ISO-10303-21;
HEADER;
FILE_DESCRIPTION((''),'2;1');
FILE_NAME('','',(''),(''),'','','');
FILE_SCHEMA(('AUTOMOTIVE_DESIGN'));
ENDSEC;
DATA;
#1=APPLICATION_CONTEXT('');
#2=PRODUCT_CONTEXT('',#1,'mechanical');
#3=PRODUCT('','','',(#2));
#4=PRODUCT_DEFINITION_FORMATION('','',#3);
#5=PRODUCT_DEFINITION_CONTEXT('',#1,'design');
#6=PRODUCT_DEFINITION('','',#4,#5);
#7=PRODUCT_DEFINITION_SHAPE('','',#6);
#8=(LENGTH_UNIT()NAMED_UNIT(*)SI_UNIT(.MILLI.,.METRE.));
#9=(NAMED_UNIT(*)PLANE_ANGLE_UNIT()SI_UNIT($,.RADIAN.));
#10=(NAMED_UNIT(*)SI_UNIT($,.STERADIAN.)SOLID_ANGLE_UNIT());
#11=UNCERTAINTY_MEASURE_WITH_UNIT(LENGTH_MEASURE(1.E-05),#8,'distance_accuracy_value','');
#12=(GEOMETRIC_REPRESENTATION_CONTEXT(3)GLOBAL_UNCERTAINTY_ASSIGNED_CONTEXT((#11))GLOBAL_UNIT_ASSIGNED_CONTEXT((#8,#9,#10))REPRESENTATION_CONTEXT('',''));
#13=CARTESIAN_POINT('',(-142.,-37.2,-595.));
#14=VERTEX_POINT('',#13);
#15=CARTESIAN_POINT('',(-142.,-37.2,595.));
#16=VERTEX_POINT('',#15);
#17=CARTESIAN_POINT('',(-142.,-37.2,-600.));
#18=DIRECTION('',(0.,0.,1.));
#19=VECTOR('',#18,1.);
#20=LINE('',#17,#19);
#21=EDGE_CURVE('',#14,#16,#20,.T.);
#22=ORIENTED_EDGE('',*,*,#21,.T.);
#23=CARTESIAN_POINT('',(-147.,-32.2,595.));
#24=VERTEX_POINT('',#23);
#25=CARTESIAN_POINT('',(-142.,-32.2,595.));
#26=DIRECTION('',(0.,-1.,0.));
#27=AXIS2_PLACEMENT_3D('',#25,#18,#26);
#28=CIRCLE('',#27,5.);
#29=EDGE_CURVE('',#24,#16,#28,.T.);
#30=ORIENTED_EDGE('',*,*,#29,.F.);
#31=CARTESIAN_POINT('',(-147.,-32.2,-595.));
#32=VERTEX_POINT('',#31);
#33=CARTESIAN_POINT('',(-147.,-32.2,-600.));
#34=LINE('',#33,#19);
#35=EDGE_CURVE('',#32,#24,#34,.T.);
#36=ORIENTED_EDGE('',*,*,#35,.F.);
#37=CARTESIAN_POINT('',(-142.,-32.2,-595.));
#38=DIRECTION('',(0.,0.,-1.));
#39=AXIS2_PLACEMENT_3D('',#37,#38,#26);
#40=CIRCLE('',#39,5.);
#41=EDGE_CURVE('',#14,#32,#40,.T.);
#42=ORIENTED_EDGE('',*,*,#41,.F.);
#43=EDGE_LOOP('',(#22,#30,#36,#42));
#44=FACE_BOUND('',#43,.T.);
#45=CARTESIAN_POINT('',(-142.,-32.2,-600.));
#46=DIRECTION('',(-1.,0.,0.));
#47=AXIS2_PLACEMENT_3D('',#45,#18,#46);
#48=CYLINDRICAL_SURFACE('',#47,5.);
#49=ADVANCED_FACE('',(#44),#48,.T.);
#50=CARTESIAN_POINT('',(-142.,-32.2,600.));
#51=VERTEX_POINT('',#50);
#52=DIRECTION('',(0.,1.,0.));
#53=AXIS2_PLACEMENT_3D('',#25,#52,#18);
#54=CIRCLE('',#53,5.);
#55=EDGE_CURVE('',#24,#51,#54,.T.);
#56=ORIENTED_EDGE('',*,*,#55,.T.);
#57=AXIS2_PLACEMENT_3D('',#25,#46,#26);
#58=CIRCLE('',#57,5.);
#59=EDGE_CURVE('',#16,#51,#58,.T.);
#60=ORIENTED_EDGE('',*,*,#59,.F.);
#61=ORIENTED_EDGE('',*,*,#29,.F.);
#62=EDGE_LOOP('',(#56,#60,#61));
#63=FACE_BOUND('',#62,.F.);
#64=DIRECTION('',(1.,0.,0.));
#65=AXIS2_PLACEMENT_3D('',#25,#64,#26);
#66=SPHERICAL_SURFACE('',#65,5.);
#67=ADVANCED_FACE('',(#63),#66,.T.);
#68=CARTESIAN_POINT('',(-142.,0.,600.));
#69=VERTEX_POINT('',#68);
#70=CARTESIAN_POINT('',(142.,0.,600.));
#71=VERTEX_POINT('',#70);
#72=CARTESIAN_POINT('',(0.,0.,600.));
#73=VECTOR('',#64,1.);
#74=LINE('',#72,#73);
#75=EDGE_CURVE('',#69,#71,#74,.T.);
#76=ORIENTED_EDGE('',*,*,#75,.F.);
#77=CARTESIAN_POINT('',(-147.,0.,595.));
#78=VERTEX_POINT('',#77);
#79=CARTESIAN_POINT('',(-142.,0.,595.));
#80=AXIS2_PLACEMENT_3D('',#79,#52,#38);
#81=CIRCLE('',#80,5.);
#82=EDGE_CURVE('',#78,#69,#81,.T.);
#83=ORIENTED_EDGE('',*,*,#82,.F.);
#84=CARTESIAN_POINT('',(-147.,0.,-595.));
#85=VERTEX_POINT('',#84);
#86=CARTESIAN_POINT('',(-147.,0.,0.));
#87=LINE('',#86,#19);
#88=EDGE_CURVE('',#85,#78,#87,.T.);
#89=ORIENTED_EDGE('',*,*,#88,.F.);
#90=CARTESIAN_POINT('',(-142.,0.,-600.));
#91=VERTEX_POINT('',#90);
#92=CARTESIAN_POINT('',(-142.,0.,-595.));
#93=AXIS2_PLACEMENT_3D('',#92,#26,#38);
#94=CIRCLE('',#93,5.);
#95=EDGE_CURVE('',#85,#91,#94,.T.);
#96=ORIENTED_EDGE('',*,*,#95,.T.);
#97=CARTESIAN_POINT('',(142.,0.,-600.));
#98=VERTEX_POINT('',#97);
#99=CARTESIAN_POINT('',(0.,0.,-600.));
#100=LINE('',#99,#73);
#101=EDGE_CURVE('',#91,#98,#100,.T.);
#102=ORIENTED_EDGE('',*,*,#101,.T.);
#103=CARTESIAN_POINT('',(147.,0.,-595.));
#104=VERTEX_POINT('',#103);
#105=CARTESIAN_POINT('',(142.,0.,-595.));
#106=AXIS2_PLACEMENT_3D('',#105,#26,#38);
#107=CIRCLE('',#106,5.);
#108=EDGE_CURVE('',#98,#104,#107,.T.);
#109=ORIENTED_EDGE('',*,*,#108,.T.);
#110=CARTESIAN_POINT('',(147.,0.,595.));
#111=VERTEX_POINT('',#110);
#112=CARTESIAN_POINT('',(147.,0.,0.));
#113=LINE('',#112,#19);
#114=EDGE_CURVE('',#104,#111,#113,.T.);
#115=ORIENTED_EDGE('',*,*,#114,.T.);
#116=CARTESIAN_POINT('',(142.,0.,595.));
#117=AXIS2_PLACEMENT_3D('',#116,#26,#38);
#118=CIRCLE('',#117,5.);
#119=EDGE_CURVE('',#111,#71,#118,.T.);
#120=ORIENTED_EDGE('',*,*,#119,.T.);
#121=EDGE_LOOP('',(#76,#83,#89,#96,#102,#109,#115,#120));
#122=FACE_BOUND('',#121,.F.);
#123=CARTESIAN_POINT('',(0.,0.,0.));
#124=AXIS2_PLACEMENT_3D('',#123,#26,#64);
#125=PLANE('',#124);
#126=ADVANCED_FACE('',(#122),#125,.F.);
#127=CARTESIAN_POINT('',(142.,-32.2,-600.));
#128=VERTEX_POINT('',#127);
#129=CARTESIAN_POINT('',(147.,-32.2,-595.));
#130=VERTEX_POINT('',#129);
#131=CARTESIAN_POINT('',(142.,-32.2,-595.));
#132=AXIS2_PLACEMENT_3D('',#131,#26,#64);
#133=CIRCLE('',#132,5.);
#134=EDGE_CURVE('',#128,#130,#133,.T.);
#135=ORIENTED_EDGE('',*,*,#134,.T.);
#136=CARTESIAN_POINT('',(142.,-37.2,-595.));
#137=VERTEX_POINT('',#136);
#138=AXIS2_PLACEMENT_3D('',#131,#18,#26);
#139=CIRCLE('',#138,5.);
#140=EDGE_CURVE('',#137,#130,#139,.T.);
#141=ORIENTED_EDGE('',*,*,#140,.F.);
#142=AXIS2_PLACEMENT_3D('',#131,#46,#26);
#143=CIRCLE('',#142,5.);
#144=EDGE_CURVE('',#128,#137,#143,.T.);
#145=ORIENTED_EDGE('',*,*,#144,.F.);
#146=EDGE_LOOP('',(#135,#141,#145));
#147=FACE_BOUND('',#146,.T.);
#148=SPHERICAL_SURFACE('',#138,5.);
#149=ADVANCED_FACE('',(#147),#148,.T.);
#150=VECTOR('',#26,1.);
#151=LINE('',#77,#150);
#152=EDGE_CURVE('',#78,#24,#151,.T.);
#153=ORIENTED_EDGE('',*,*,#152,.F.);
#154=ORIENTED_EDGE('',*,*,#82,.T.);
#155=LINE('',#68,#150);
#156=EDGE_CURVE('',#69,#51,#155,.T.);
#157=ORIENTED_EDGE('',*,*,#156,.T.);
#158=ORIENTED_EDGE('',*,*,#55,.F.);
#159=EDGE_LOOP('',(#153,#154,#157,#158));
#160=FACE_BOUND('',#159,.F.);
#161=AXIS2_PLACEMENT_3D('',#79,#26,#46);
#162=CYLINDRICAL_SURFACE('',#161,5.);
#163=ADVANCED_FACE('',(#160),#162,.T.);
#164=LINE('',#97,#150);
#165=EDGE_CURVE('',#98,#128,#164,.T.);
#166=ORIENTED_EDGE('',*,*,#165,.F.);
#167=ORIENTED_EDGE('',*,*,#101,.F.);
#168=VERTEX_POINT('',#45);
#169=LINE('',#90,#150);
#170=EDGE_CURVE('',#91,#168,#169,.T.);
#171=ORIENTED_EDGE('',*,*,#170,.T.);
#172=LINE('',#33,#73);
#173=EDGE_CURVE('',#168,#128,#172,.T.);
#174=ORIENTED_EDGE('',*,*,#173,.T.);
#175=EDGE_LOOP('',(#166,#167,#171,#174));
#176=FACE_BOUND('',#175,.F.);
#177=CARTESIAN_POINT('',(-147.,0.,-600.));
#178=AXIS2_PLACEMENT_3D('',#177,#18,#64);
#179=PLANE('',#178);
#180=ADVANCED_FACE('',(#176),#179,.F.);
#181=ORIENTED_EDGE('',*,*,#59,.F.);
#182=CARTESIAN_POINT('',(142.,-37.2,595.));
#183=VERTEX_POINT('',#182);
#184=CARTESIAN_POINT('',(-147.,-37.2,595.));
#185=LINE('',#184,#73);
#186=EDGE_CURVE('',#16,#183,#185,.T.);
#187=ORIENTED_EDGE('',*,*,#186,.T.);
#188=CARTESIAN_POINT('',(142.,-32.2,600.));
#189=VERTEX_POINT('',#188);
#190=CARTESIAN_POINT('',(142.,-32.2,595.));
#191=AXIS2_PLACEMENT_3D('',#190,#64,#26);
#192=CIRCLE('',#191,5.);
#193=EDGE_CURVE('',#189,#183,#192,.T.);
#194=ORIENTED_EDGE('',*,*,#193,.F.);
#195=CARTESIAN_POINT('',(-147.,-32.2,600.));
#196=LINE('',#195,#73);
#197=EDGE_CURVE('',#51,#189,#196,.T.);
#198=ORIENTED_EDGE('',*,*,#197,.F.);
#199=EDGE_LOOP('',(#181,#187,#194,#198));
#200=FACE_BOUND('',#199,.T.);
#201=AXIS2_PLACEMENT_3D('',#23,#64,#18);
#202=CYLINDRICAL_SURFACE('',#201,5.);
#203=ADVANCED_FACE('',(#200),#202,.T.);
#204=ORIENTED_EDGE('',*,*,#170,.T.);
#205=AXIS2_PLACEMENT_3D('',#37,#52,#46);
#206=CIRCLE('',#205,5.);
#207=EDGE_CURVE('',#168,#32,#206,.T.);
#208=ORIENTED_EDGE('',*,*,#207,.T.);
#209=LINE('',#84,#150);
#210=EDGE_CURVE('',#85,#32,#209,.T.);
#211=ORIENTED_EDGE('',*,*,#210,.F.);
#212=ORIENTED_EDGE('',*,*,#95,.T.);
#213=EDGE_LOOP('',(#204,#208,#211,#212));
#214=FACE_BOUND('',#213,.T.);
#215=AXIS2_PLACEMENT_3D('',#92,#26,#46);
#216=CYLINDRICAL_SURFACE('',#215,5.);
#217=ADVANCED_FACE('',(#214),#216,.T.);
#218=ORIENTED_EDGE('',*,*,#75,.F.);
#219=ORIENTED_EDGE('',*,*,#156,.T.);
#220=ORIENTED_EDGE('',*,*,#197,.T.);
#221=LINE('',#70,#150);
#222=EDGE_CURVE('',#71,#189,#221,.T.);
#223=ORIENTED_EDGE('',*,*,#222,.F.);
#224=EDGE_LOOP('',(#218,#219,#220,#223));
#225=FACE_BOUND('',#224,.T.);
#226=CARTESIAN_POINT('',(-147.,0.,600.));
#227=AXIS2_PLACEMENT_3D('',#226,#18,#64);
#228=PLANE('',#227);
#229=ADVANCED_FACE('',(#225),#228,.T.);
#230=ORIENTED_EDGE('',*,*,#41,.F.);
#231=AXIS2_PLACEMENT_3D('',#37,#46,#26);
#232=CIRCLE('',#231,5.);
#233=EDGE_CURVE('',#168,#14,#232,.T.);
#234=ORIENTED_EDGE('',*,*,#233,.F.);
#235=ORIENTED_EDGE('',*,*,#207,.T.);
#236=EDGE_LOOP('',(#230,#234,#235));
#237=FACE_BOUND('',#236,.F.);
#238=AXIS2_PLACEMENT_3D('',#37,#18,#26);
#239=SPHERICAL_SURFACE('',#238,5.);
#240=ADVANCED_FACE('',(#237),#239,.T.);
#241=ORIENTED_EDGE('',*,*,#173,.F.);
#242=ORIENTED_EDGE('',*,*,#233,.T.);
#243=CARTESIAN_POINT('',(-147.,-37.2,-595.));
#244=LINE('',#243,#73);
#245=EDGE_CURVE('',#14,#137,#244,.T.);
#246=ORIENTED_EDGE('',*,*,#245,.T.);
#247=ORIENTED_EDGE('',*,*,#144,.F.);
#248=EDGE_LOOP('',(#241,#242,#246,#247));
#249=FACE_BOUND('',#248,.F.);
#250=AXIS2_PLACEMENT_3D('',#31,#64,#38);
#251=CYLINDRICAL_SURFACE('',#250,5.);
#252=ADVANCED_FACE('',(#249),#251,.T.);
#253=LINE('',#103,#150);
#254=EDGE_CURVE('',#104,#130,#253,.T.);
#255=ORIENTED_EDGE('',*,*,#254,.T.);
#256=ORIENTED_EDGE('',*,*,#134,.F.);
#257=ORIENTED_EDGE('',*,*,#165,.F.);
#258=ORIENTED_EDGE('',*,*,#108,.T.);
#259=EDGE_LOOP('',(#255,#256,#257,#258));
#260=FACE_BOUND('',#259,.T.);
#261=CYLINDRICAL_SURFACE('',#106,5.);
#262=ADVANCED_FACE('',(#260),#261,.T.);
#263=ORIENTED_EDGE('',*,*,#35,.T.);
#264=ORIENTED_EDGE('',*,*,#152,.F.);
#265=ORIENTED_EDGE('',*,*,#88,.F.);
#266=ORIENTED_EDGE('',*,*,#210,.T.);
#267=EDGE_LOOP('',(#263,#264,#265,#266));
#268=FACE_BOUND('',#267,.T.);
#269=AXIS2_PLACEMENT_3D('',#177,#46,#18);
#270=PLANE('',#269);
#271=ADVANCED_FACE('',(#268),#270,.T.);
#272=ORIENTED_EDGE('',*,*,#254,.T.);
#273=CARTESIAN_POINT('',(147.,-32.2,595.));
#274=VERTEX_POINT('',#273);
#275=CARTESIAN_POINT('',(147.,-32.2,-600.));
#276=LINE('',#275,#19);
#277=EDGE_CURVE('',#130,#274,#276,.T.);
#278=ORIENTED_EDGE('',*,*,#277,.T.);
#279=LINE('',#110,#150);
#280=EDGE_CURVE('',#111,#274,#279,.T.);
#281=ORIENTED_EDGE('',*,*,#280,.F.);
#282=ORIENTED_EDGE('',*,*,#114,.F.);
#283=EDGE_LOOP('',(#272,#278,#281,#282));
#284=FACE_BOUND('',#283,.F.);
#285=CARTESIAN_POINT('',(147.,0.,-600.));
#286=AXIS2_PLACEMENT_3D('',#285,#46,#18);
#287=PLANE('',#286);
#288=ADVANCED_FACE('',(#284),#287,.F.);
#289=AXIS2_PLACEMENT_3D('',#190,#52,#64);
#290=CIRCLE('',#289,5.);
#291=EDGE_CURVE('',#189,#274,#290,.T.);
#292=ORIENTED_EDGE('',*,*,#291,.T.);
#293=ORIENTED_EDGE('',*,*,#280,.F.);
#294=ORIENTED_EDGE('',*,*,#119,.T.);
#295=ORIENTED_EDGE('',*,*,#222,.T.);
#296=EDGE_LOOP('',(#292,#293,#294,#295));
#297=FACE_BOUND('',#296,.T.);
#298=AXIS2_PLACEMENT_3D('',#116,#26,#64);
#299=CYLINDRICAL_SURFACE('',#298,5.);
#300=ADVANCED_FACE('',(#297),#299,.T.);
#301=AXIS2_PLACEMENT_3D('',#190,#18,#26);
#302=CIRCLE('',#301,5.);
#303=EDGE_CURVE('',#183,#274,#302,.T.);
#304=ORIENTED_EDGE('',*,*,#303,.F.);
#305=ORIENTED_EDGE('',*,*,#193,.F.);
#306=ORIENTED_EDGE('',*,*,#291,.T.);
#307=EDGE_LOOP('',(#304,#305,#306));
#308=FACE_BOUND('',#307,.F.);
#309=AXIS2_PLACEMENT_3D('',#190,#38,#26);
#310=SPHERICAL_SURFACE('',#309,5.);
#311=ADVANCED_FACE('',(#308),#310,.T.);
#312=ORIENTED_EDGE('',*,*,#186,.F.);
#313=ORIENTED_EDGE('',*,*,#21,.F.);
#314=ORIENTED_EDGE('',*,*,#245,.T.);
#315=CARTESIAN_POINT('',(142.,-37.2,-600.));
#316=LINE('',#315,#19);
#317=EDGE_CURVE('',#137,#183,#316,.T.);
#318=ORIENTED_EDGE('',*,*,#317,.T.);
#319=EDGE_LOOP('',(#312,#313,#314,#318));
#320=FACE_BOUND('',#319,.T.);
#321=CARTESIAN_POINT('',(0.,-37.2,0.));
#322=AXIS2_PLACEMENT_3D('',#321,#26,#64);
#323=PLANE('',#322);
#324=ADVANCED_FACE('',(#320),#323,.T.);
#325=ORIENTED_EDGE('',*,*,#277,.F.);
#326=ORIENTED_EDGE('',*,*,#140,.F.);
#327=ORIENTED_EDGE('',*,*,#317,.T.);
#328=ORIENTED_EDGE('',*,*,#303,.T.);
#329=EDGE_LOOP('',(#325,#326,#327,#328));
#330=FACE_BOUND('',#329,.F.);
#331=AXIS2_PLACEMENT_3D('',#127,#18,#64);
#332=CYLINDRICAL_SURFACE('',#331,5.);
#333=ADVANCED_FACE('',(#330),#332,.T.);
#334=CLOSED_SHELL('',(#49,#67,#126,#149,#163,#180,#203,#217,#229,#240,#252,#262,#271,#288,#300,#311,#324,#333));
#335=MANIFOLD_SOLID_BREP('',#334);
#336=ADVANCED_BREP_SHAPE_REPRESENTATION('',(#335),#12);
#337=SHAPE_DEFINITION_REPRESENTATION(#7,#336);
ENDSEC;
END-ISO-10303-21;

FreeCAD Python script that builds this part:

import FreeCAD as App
import Part
import Sketcher


def edges_at(feature, points):
    """Names of the edges that pass closest to the given points."""
    edges = feature.Shape.Edges
    near = lambda p: min(range(len(edges)), key=lambda i: edges[i].distToShape(Part.Vertex(*p))[0])
    return sorted({f"Edge{near(p) + 1}" for p in points})

doc = App.newDocument("Part")
params = doc.addObject("Spreadsheet::Sheet", "Params")
for row, (alias, value) in enumerate([
    ("sketch1_width", "294 mm"),
    ("sketch1_height", "1200 mm"),
    ("pad1_length", "37.2 mm"),
    ("fillet_radius", "5 mm"),
], start=1):
    params.set(f"A{row}", alias)
    params.set(f"B{row}", "=" + value)
    params.setAlias(f"B{row}", alias)

body = doc.addObject("PartDesign::Body", "Body")

sketch1 = doc.addObject("Sketcher::SketchObject", "Sketch")
body.addObject(sketch1)
sketch1.AttachmentSupport = (doc.XZ_Plane, [""])
sketch1.MapMode = "FlatFace"
sketch1.addGeometry(Part.LineSegment(App.Vector(-147, 600, 0), App.Vector(-147, -600, 0)), False)
sketch1.addGeometry(Part.LineSegment(App.Vector(-147, -600, 0), App.Vector(147, -600, 0)), False)
sketch1.addGeometry(Part.LineSegment(App.Vector(147, -600, 0), App.Vector(147, 600, 0)), False)
sketch1.addGeometry(Part.LineSegment(App.Vector(147, 600, 0), App.Vector(-147, 600, 0)), False)
sketch1.addConstraint(Sketcher.Constraint("Coincident", 0, 2, 1, 1))
sketch1.addConstraint(Sketcher.Constraint("Coincident", 1, 2, 2, 1))
sketch1.addConstraint(Sketcher.Constraint("Coincident", 2, 2, 3, 1))
sketch1.addConstraint(Sketcher.Constraint("Coincident", 3, 2, 0, 1))
sketch1.addConstraint(Sketcher.Constraint("Vertical", 0))
sketch1.addConstraint(Sketcher.Constraint("Horizontal", 1))
sketch1.addConstraint(Sketcher.Constraint("Vertical", 2))
sketch1.addConstraint(Sketcher.Constraint("Horizontal", 3))
sketch1.addConstraint(Sketcher.Constraint("Symmetric", 0, 2, 2, 2, -1, 1))
sketch1.addConstraint(Sketcher.Constraint("DistanceX", 1, 1, 1, 2, 294.0))
sketch1.addConstraint(Sketcher.Constraint("DistanceY", 0, 2, 0, 1, 1200.0))
sketch1.setExpression("Constraints[9]", "Params.sketch1_width")
sketch1.setExpression("Constraints[10]", "Params.sketch1_height")
pad1 = doc.addObject("PartDesign::Pad", "Pad")
body.addObject(pad1)
pad1.Profile = sketch1
pad1.setExpression("Length", "Params.pad1_length")
doc.recompute()

fillet = doc.addObject("PartDesign::Fillet", "Fillet")
body.addObject(fillet)
fillet.Base = (pad1, edges_at(pad1, [
    (147, -37.2, 0),
    (0, -37.2, 600),
    (-147, -37.2, 0),
    (0, -37.2, -600),
    (-147, -18.6, 600),
    (147, -18.6, 600),
    (147, -18.6, -600),
    (-147, -18.6, -600),
]))
fillet.setExpression("Radius", "Params.fillet_radius")

doc.recompute()
